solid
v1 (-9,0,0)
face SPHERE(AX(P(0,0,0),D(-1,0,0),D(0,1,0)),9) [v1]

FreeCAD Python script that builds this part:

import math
import FreeCAD as App
import Part
import Sketcher
from FreeCAD import Vector

doc = App.newDocument("Part")
params = doc.addObject("Spreadsheet::Sheet", "Params")
for row, (alias, value) in enumerate([
    ("sketch1_radius", "9 mm"),
    ("revolution_angle", "360 deg"),
], start=1):
    params.set(f"A{row}", alias)
    params.set(f"B{row}", "=" + value)
    params.setAlias(f"B{row}", alias)

body = doc.addObject("PartDesign::Body", "Body")

sketch1 = body.newObject("Sketcher::SketchObject", "Sketch")
sketch1.AttachmentSupport = (doc.getObject("XY_Plane"), [""])
sketch1.MapMode = "FlatFace"
sketch1.addGeometry([
    Part.LineSegment(Vector(-9, 0, 0), Vector(9, 0, 0)),
    Part.ArcOfCircle(Part.Circle(Vector(0, 0, 0), Vector(0, 0, 1), 9), math.radians(0), math.radians(180)),
], False)
sketch1.addConstraint([
    Sketcher.Constraint("Coincident", 0, 1, 1, 2),
    Sketcher.Constraint("Coincident", 1, 1, 0, 2),
    Sketcher.Constraint("Horizontal", 0),
    Sketcher.Constraint("Coincident", 1, 3, -1, 1),
    Sketcher.Constraint("PointOnObject", 0, 1, -1),
    Sketcher.Constraint("Radius", 1, 9.0),
])
sketch1.setExpression("Constraints[5]", "Params.sketch1_radius")
revolution = body.newObject("PartDesign::Revolution", "Revolution")
revolution.Profile = sketch1
revolution.ReferenceAxis = (sketch1, ["H_Axis"])
revolution.setExpression("Angle", "Params.revolution_angle")

doc.recompute()
